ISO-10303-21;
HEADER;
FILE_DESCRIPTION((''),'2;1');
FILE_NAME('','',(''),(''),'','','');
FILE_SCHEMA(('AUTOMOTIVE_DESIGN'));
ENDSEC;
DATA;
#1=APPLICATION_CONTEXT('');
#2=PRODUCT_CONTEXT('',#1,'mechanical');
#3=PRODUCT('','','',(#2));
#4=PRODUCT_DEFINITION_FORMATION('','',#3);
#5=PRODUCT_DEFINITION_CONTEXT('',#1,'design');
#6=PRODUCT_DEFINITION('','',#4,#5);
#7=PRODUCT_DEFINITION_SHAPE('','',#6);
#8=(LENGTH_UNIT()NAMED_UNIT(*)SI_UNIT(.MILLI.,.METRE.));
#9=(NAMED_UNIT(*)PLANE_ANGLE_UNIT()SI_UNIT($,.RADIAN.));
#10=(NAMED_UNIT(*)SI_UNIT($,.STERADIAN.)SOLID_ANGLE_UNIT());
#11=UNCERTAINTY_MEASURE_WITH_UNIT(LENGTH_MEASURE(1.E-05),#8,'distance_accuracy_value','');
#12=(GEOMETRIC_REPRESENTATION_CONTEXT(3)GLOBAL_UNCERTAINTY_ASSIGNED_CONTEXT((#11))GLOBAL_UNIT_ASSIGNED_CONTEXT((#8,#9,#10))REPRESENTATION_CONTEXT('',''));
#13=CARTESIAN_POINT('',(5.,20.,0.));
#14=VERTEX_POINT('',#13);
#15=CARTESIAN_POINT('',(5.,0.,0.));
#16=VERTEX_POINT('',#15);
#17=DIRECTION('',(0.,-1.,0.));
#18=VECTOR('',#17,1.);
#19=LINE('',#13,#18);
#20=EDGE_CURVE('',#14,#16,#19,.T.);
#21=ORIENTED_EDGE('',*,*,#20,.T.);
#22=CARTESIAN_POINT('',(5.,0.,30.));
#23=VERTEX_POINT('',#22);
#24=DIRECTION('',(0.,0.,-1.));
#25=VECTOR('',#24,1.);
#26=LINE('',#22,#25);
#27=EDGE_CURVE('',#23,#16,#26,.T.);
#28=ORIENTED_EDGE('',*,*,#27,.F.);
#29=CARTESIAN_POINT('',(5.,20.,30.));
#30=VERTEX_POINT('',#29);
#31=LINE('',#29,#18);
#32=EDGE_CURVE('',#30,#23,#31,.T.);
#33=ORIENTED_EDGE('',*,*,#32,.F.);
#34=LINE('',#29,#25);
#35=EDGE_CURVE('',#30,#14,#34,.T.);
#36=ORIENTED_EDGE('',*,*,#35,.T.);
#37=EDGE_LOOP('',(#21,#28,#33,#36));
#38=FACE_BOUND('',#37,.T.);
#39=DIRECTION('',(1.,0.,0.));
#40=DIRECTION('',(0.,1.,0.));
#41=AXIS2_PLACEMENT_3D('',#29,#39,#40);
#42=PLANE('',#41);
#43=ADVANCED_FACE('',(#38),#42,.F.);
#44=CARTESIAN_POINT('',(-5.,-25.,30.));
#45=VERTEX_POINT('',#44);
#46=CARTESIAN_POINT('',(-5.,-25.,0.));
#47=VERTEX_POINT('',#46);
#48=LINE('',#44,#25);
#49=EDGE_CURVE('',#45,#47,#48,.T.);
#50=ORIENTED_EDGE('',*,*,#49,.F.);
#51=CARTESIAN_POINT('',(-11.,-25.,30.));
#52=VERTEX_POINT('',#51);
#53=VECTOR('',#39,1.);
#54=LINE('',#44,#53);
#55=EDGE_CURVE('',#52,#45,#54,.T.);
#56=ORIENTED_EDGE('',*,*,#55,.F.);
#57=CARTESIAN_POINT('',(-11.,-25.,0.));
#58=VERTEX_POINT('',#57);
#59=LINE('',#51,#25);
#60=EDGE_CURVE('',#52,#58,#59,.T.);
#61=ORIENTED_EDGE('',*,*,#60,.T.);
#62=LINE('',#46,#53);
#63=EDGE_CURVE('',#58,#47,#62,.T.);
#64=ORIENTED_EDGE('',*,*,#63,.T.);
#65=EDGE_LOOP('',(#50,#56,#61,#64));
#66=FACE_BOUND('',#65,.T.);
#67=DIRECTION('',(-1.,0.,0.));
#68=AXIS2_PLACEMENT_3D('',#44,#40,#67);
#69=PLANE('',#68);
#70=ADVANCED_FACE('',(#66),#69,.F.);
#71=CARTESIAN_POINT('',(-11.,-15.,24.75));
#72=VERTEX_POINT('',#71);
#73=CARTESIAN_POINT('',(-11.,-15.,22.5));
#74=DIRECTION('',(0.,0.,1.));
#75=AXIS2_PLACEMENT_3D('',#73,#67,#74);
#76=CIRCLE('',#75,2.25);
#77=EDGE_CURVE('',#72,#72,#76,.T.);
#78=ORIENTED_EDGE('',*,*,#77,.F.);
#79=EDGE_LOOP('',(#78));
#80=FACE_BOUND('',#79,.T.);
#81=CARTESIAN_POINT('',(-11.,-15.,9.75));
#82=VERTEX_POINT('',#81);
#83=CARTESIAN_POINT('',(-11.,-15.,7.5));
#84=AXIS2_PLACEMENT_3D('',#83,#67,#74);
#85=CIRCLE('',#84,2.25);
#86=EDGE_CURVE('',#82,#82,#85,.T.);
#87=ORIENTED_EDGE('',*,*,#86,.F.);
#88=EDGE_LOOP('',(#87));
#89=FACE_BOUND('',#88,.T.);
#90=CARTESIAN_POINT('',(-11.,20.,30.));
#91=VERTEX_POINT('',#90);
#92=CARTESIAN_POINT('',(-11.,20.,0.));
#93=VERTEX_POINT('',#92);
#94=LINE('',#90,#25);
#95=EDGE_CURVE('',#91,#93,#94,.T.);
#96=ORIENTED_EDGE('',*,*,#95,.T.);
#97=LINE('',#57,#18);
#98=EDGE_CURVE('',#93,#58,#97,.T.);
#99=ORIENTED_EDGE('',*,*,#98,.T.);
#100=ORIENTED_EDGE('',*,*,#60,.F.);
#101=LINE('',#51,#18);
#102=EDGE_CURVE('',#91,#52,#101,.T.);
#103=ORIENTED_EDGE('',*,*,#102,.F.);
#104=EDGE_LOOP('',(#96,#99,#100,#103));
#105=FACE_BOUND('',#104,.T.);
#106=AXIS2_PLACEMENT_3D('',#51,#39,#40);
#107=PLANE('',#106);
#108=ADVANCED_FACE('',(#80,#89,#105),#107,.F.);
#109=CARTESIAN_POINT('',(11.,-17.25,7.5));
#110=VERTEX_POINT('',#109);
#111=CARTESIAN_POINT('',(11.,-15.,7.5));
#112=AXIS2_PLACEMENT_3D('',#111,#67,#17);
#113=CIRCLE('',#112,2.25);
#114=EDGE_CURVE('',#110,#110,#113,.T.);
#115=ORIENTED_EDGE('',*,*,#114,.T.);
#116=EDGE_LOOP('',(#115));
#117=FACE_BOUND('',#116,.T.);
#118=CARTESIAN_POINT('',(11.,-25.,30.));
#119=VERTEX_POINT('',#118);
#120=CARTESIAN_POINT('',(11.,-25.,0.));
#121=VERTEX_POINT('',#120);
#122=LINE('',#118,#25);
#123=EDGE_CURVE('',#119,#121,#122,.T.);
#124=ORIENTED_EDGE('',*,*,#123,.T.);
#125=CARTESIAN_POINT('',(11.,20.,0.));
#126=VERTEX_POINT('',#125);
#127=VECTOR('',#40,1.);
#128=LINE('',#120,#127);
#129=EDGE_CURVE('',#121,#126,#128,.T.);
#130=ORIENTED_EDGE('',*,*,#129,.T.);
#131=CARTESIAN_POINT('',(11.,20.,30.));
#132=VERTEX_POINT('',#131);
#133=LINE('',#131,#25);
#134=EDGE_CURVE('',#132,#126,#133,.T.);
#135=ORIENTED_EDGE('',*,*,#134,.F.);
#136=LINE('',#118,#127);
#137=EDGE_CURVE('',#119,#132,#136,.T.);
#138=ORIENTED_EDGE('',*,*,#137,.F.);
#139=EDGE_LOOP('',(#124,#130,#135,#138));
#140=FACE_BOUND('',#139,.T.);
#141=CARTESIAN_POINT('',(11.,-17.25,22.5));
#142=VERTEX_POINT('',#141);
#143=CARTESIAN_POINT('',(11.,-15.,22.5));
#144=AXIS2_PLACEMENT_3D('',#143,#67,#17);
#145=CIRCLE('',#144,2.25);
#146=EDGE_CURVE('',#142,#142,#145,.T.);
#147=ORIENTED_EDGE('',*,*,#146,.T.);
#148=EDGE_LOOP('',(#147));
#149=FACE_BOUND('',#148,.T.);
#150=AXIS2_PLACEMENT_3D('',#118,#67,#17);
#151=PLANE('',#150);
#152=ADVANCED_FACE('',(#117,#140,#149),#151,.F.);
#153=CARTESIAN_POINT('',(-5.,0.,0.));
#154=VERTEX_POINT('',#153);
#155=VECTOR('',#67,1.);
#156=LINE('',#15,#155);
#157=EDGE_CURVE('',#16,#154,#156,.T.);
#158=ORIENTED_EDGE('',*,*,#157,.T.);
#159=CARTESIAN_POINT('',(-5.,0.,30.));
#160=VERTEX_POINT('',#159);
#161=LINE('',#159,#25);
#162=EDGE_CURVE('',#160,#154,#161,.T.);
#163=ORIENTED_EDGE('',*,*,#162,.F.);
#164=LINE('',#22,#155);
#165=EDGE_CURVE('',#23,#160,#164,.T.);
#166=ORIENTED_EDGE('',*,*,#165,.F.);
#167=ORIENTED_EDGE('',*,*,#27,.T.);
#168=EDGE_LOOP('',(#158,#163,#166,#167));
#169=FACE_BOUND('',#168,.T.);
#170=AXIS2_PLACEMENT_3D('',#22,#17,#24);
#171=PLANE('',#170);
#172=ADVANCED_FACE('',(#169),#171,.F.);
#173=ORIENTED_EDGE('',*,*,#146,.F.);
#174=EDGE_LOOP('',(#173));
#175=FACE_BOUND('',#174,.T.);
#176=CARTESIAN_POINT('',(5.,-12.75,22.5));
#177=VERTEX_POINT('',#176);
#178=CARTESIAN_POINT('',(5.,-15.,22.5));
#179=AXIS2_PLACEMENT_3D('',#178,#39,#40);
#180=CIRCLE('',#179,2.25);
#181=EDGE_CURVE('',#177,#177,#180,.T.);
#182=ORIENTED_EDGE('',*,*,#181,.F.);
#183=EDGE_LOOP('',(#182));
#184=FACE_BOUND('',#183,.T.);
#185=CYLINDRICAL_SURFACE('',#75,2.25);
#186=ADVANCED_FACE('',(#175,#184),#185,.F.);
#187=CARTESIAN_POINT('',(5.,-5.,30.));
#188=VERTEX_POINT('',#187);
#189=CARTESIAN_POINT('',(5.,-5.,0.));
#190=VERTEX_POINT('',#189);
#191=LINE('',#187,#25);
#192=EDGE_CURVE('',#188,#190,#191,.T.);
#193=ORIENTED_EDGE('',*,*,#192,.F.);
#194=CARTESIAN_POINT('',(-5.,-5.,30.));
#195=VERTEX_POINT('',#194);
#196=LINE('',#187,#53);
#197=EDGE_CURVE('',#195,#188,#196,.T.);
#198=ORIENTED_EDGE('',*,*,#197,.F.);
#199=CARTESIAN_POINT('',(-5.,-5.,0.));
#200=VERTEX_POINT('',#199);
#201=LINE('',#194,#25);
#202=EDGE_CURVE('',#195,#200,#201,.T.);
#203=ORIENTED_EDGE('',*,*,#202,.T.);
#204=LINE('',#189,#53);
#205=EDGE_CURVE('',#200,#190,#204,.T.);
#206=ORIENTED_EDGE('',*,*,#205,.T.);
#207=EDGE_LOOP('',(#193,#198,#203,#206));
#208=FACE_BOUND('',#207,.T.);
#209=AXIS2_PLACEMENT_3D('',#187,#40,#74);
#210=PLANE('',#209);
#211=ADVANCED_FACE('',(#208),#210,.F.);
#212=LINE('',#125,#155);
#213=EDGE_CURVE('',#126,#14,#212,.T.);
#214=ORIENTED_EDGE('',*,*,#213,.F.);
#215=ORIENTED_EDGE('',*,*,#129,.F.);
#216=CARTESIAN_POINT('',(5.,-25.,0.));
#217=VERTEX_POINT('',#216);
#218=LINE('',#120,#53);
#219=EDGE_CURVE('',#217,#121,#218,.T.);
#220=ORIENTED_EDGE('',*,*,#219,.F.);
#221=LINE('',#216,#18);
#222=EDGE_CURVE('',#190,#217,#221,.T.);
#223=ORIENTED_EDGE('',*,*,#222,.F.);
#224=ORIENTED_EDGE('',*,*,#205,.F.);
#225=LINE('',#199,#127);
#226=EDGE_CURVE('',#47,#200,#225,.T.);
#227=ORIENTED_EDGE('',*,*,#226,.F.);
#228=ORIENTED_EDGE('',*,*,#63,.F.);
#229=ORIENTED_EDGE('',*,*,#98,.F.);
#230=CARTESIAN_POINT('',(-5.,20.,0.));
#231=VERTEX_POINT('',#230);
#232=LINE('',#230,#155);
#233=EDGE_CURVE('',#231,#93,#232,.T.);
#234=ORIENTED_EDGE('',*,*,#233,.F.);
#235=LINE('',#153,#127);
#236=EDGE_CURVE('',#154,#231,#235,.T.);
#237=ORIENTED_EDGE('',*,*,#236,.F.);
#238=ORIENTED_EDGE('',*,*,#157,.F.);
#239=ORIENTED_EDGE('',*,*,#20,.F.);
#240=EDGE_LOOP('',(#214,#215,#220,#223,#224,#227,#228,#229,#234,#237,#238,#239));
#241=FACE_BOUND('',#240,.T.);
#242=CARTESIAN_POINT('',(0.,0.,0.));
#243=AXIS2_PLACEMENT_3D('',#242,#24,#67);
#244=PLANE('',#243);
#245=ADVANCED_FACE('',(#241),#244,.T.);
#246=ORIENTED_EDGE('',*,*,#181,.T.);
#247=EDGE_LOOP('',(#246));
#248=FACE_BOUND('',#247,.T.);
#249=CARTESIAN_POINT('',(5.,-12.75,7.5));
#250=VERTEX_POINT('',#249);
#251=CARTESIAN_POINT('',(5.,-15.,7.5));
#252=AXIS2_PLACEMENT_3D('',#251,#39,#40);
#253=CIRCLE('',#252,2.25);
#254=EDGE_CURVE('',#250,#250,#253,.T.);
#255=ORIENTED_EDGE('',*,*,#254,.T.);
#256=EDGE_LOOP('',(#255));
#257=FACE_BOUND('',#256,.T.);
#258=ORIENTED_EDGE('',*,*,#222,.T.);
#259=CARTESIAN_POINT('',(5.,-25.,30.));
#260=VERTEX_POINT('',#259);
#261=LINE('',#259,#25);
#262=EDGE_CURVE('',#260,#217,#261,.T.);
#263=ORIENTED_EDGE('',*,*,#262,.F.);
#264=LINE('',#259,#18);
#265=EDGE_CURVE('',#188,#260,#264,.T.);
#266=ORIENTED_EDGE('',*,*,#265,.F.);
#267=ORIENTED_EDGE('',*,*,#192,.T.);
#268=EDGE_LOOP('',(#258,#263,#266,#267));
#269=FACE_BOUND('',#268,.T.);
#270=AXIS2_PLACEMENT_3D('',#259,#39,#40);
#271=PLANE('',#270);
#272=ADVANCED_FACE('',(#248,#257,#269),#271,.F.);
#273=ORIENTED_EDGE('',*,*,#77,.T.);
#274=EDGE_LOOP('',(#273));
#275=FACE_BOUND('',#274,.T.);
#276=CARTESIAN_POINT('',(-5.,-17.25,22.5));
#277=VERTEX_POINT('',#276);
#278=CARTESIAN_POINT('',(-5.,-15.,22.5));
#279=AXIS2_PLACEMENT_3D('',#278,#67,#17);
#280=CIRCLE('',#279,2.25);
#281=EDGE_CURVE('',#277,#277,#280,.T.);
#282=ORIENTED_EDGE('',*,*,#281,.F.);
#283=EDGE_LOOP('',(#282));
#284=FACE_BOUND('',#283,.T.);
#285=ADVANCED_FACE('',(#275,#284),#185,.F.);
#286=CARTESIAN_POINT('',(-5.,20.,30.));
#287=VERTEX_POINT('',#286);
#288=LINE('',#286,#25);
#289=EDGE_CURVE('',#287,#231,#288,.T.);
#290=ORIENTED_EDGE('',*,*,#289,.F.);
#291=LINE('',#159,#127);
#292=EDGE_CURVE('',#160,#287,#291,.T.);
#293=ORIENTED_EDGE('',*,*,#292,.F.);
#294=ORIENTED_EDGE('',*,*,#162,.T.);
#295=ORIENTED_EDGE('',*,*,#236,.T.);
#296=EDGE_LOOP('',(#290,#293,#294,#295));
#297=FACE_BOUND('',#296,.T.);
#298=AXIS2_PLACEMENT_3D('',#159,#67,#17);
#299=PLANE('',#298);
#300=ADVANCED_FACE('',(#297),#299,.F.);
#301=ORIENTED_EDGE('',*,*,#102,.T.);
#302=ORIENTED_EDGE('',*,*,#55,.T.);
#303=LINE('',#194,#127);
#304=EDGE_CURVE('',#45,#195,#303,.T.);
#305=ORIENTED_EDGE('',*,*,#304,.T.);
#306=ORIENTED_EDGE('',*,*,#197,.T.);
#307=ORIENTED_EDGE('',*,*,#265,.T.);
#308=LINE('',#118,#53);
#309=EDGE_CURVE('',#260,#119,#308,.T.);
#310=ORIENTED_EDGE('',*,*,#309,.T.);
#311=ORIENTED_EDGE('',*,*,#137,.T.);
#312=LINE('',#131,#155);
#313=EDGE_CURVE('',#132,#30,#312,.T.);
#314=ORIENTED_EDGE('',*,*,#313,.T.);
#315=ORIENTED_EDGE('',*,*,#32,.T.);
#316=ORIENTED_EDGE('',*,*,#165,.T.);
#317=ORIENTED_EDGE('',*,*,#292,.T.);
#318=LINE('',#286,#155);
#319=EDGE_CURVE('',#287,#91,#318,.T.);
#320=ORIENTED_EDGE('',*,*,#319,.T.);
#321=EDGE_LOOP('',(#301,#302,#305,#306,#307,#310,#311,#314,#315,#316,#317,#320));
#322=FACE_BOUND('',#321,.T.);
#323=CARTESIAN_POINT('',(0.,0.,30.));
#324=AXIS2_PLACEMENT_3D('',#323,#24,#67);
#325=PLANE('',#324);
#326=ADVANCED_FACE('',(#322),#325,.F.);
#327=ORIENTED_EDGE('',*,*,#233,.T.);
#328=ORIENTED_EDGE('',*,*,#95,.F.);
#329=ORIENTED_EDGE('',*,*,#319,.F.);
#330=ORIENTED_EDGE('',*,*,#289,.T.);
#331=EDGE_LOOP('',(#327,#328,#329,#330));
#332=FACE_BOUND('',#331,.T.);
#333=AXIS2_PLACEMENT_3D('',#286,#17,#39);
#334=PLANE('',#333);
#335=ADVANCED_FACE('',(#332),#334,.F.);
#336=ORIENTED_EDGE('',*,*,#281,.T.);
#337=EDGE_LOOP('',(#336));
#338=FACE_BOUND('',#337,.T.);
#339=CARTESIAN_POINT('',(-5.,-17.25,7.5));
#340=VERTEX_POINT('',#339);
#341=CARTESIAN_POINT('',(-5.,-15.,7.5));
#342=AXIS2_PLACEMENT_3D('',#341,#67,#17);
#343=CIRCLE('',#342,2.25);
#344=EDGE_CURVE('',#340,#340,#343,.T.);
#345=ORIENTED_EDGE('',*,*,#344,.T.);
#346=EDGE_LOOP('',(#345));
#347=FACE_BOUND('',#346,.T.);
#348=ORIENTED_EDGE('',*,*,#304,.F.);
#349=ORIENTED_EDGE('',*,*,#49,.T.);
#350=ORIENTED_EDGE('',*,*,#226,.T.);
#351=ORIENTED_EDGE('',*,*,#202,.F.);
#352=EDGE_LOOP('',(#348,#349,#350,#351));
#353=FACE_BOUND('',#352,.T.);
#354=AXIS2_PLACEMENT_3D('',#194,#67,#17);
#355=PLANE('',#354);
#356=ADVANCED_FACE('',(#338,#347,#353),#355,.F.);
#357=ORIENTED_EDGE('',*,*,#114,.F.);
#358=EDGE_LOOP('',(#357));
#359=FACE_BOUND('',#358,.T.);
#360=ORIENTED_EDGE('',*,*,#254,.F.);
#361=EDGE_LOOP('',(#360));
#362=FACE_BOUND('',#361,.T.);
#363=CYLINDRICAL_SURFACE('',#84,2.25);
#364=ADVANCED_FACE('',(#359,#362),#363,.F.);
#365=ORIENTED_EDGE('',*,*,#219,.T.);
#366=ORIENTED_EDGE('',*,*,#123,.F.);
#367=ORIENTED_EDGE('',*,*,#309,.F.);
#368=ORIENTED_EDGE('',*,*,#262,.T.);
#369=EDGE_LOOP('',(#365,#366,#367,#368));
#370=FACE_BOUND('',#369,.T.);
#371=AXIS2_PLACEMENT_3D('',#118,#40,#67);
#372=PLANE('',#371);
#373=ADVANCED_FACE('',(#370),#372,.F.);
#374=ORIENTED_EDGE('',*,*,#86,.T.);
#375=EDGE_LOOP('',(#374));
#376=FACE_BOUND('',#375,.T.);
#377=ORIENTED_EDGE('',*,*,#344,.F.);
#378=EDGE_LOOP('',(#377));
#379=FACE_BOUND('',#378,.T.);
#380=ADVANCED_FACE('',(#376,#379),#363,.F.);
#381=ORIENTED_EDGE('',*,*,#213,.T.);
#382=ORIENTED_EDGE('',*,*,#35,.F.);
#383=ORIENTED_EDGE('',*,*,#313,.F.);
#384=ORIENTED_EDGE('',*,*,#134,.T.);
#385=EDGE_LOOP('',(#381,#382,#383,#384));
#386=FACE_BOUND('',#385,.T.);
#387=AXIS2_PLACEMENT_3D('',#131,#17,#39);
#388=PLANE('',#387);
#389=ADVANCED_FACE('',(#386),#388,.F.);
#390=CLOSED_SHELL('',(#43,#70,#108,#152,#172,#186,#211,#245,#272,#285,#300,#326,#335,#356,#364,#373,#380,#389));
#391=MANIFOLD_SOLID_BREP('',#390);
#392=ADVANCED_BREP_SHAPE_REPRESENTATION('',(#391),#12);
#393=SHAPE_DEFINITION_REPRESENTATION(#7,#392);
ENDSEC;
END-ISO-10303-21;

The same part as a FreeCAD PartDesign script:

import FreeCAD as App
import Part
import Sketcher


def add_polygon(sketch, points):
    """Adds a closed chain of lines whose ends are joined by coincident constraints."""
    first, n = sketch.GeometryCount, len(points)
    for a, b in zip(points, points[1:] + points[:1]):
        sketch.addGeometry(Part.LineSegment(App.Vector(*a, 0), App.Vector(*b, 0)), False)
    for i in range(n):
        sketch.addConstraint(Sketcher.Constraint("Coincident", first + i, 2, first + (i + 1) % n, 1))

doc = App.newDocument("Part")
body = doc.addObject("PartDesign::Body", "Body")

sketch1 = body.newObject("Sketcher::SketchObject", "Sketch")
sketch1.AttachmentSupport = (doc.getObject("XY_Plane"), [""])
sketch1.MapMode = "FlatFace"
add_polygon(sketch1, [(11, -25), (11, 20), (5, 20), (5, 0), (-5, 0), (-5, 20), (-11, 20), (-11, -25), (-5, -25), (-5, -5), (5, -5), (5, -25)])
sketch1.addConstraint(Sketcher.Constraint("Vertical", 0))
sketch1.addConstraint(Sketcher.Constraint("Horizontal", 1))
sketch1.addConstraint(Sketcher.Constraint("Vertical", 2))
sketch1.addConstraint(Sketcher.Constraint("Horizontal", 3))
sketch1.addConstraint(Sketcher.Constraint("Vertical", 4))
sketch1.addConstraint(Sketcher.Constraint("Horizontal", 5))
sketch1.addConstraint(Sketcher.Constraint("Vertical", 6))
sketch1.addConstraint(Sketcher.Constraint("Horizontal", 7))
sketch1.addConstraint(Sketcher.Constraint("Vertical", 8))
sketch1.addConstraint(Sketcher.Constraint("Horizontal", 9))
sketch1.addConstraint(Sketcher.Constraint("Vertical", 10))
sketch1.addConstraint(Sketcher.Constraint("Horizontal", 11))
sketch1.addConstraint(Sketcher.Constraint("Symmetric", 2, 2, 3, 2, -1, 1))
sketch1.addConstraint(Sketcher.Constraint("Symmetric", 0, 2, 5, 2, -2))
sketch1.addConstraint(Sketcher.Constraint("Symmetric", 7, 2, 10, 2, -2))
sketch1.addConstraint(Sketcher.Constraint("Vertical", 4, 2, 7, 2))
sketch1.addConstraint(Sketcher.Constraint("Equal", 4, 8))
sketch1.addConstraint(Sketcher.Constraint("DistanceX", 1, 2, 1, 1, 6.0))
sketch1.addConstraint(Sketcher.Constraint("DistanceX", 3, 2, 3, 1, 10.0))
sketch1.addConstraint(Sketcher.Constraint("DistanceY", 0, 1, 0, 2, 45.0))
sketch1.addConstraint(Sketcher.Constraint("DistanceY", 2, 2, 2, 1, 20.0))
pad1 = body.newObject("PartDesign::Pad", "Pad")
pad1.Profile = sketch1
pad1.Length = 30

sketch2 = body.newObject("Sketcher::SketchObject", "Sketch001")
sketch2.AttachmentSupport = (doc.getObject("YZ_Plane"), [""])
sketch2.MapMode = "FlatFace"
sketch2.AttachmentOffset = App.Placement(App.Vector(0, 0, -11), App.Rotation())
sketch2.addGeometry(Part.Circle(App.Vector(-15, 22.5, 0), App.Vector(0, 0, 1), 2.25), False)
sketch2.addGeometry(Part.Circle(App.Vector(-15, 7.5, 0), App.Vector(0, 0, 1), 2.25), False)
sketch2.addConstraint(Sketcher.Constraint("Equal", 0, 1))
sketch2.addConstraint(Sketcher.Constraint("Vertical", 0, 3, 1, 3))
sketch2.addConstraint(Sketcher.Constraint("Diameter", 0, 4.5))
sketch2.addConstraint(Sketcher.Constraint("DistanceX", 0, 3, -1, 1, 15.0))
sketch2.addConstraint(Sketcher.Constraint("DistanceY", 1, 3, 0, 3, 15.0))
sketch2.addConstraint(Sketcher.Constraint("DistanceY", -1, 1, 0, 3, 22.5))
doc.recompute()
hole = body.newObject("PartDesign::Hole", "Hole")
hole.Profile = sketch2
hole.ThreadType = "None"
hole.Diameter = 4.5
hole.DepthType = "Dimension"
hole.Depth = 30
hole.DrillPoint = "Angled"
hole.DrillPointAngle = 118
hole.Reversed = True

doc.recompute()
